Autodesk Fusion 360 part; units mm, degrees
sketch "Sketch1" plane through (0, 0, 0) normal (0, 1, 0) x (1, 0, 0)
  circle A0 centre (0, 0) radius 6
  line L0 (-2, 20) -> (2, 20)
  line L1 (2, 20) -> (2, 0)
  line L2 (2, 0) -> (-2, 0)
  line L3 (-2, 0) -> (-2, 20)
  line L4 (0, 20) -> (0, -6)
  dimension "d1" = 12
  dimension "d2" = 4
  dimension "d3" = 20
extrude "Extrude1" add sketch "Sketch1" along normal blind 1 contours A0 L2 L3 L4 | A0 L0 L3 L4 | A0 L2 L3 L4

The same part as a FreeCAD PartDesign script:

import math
import FreeCAD as App
import Part
import Sketcher
Q = App.Units.Quantity

doc = App.newDocument("Part")
params = doc.addObject("Spreadsheet::Sheet", "Params")
for row, (alias, value) in enumerate([
    ("sketch1_radius", "6 mm"),
    ("sketch1_width", "2 mm"),
    ("pad1_length", "1 mm"),
], start=1):
    params.set(f"A{row}", alias)
    params.set(f"B{row}", "=" + value)
    params.setAlias(f"B{row}", alias)

body = doc.addObject("PartDesign::Body", "Body")

# Sketch on XZ plane
sketch1 = body.newObject("Sketcher::SketchObject", "Sketch")
sketch1.AttachmentSupport = (doc.getObject("XZ_Plane"), [""])
sketch1.MapMode = "FlatFace"
sketch1.addGeometry(Part.ArcOfCircle(Part.Circle(App.Vector(0, 0, 0), App.Vector(0, 0, 1), 6), math.radians(90), math.radians(251)), False)
sketch1.addGeometry(Part.LineSegment(App.Vector(0, 6, 0), App.Vector(0, -20, 0)), False)
sketch1.addGeometry(Part.LineSegment(App.Vector(0, -20, 0), App.Vector(-2, -20, 0)), False)
sketch1.addGeometry(Part.LineSegment(App.Vector(-2, -20, 0), App.Vector(-2, -5.7, 0)), False)
sketch1.addConstraint(Sketcher.Constraint("Coincident", 0, 1, 1, 1))
sketch1.addConstraint(Sketcher.Constraint("Coincident", 1, 2, 2, 1))
sketch1.addConstraint(Sketcher.Constraint("Coincident", 2, 2, 3, 1))
sketch1.addConstraint(Sketcher.Constraint("Coincident", 3, 2, 0, 2))
sketch1.addConstraint(Sketcher.Constraint("Vertical", 1))
sketch1.addConstraint(Sketcher.Constraint("Horizontal", 2))
sketch1.addConstraint(Sketcher.Constraint("Vertical", 3))
sketch1.addConstraint(Sketcher.Constraint("Coincident", 0, 3, -1, 1))
sketch1.addConstraint(Sketcher.Constraint("PointOnObject", 0, 1, -2))
sketch1.addConstraint(Sketcher.Constraint("Radius", 0, Q("6 mm")))
sketch1.addConstraint(Sketcher.Constraint("DistanceY", 1, 2, -1, 1, Q("20 mm")))
sketch1.addConstraint(Sketcher.Constraint("DistanceX", 2, 2, 2, 1, Q("2 mm")))
sketch1.setExpression("Constraints[9]", "Params.sketch1_radius")
sketch1.setExpression("Constraints[11]", "Params.sketch1_width")
pad1 = body.newObject("PartDesign::Pad", "Pad")
pad1.Profile = sketch1
pad1.setExpression("Length", "Params.pad1_length")
pad1.Reversed = True

doc.recompute()
